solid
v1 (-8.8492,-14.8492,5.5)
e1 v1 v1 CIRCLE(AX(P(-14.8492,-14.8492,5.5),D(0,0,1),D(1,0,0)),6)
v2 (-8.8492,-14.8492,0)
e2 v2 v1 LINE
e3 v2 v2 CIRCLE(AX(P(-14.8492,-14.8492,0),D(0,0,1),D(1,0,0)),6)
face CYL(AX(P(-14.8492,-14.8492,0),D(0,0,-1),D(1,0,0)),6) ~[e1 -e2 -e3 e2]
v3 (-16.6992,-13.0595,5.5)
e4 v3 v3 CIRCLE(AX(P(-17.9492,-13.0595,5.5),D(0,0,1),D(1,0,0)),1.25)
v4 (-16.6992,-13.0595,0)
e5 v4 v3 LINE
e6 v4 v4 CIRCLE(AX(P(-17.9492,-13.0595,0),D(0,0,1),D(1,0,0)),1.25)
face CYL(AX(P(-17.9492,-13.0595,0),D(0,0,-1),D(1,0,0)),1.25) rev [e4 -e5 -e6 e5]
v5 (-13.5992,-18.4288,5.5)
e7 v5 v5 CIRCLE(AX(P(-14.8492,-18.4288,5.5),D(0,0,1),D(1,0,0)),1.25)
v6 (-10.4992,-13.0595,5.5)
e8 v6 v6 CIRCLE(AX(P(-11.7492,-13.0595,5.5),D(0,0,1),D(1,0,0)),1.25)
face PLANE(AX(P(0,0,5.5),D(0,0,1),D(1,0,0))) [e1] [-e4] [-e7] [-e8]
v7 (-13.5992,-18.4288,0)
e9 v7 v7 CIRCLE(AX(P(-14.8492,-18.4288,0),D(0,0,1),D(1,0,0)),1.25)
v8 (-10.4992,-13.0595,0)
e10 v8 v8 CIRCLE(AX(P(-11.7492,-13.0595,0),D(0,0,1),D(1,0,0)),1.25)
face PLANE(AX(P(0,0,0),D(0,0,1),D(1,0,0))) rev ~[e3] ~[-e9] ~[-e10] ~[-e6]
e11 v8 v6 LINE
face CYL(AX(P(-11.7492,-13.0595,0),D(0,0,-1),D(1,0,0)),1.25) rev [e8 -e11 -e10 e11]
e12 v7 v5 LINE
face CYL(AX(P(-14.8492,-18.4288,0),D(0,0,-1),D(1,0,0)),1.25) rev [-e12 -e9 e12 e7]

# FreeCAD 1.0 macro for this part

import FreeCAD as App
import Part
import Sketcher

doc = App.newDocument("Part")
params = doc.addObject("Spreadsheet::Sheet", "Params")
for row, (alias, value) in enumerate([
    ("sketch1_diameter", "12 mm"),
    ("sketch1_diameter2", "2.5 mm"),
    ("pad1_length", "5.5 mm"),
], start=1):
    params.set(f"A{row}", alias)
    params.set(f"B{row}", "=" + value)
    params.setAlias(f"B{row}", alias)

body = doc.addObject("PartDesign::Body", "Body")

sketch1 = doc.addObject("Sketcher::SketchObject", "Sketch")
body.addObject(sketch1)
sketch1.AttachmentSupport = (doc.XY_Plane, [""])
sketch1.MapMode = "FlatFace"
sketch1.addGeometry([
    Part.Circle(App.Vector(-14.8, -14.8, 0), App.Vector(0, 0, 1), 6),
    Part.Circle(App.Vector(-14.8, -18.4, 0), App.Vector(0, 0, 1), 1.2),
    Part.Circle(App.Vector(-17.9, -13.1, 0), App.Vector(0, 0, 1), 1.2),
    Part.Circle(App.Vector(-11.7, -13.1, 0), App.Vector(0, 0, 1), 1.2),
], False)
sketch1.addConstraint([
    Sketcher.Constraint("Equal", 1, 2),
    Sketcher.Constraint("Equal", 2, 3),
    Sketcher.Constraint("Horizontal", 2, 3, 3, 3),
    Sketcher.Constraint("Vertical", 0, 3, 1, 3),
    Sketcher.Constraint("Diameter", 0, 12.0),
    Sketcher.Constraint("Diameter", 1, 2.5),
    Sketcher.Constraint("DistanceX", 2, 3, 0, 3, 3.1),
    Sketcher.Constraint("DistanceX", 0, 3, 3, 3, 3.1),
    Sketcher.Constraint("DistanceX", 0, 3, -1, 1, 14.8492),
    Sketcher.Constraint("DistanceY", 0, 3, -1, 1, 14.8492),
    Sketcher.Constraint("DistanceY", 1, 3, -1, 1, 18.4288),
    Sketcher.Constraint("DistanceY", 2, 3, -1, 1, 13.0595),
])
sketch1.setExpression("Constraints[4]", "Params.sketch1_diameter")
sketch1.setExpression("Constraints[5]", "Params.sketch1_diameter2")
pad1 = doc.addObject("PartDesign::Pad", "Pad")
body.addObject(pad1)
pad1.Profile = sketch1
pad1.setExpression("Length", "Params.pad1_length")

doc.recompute()
